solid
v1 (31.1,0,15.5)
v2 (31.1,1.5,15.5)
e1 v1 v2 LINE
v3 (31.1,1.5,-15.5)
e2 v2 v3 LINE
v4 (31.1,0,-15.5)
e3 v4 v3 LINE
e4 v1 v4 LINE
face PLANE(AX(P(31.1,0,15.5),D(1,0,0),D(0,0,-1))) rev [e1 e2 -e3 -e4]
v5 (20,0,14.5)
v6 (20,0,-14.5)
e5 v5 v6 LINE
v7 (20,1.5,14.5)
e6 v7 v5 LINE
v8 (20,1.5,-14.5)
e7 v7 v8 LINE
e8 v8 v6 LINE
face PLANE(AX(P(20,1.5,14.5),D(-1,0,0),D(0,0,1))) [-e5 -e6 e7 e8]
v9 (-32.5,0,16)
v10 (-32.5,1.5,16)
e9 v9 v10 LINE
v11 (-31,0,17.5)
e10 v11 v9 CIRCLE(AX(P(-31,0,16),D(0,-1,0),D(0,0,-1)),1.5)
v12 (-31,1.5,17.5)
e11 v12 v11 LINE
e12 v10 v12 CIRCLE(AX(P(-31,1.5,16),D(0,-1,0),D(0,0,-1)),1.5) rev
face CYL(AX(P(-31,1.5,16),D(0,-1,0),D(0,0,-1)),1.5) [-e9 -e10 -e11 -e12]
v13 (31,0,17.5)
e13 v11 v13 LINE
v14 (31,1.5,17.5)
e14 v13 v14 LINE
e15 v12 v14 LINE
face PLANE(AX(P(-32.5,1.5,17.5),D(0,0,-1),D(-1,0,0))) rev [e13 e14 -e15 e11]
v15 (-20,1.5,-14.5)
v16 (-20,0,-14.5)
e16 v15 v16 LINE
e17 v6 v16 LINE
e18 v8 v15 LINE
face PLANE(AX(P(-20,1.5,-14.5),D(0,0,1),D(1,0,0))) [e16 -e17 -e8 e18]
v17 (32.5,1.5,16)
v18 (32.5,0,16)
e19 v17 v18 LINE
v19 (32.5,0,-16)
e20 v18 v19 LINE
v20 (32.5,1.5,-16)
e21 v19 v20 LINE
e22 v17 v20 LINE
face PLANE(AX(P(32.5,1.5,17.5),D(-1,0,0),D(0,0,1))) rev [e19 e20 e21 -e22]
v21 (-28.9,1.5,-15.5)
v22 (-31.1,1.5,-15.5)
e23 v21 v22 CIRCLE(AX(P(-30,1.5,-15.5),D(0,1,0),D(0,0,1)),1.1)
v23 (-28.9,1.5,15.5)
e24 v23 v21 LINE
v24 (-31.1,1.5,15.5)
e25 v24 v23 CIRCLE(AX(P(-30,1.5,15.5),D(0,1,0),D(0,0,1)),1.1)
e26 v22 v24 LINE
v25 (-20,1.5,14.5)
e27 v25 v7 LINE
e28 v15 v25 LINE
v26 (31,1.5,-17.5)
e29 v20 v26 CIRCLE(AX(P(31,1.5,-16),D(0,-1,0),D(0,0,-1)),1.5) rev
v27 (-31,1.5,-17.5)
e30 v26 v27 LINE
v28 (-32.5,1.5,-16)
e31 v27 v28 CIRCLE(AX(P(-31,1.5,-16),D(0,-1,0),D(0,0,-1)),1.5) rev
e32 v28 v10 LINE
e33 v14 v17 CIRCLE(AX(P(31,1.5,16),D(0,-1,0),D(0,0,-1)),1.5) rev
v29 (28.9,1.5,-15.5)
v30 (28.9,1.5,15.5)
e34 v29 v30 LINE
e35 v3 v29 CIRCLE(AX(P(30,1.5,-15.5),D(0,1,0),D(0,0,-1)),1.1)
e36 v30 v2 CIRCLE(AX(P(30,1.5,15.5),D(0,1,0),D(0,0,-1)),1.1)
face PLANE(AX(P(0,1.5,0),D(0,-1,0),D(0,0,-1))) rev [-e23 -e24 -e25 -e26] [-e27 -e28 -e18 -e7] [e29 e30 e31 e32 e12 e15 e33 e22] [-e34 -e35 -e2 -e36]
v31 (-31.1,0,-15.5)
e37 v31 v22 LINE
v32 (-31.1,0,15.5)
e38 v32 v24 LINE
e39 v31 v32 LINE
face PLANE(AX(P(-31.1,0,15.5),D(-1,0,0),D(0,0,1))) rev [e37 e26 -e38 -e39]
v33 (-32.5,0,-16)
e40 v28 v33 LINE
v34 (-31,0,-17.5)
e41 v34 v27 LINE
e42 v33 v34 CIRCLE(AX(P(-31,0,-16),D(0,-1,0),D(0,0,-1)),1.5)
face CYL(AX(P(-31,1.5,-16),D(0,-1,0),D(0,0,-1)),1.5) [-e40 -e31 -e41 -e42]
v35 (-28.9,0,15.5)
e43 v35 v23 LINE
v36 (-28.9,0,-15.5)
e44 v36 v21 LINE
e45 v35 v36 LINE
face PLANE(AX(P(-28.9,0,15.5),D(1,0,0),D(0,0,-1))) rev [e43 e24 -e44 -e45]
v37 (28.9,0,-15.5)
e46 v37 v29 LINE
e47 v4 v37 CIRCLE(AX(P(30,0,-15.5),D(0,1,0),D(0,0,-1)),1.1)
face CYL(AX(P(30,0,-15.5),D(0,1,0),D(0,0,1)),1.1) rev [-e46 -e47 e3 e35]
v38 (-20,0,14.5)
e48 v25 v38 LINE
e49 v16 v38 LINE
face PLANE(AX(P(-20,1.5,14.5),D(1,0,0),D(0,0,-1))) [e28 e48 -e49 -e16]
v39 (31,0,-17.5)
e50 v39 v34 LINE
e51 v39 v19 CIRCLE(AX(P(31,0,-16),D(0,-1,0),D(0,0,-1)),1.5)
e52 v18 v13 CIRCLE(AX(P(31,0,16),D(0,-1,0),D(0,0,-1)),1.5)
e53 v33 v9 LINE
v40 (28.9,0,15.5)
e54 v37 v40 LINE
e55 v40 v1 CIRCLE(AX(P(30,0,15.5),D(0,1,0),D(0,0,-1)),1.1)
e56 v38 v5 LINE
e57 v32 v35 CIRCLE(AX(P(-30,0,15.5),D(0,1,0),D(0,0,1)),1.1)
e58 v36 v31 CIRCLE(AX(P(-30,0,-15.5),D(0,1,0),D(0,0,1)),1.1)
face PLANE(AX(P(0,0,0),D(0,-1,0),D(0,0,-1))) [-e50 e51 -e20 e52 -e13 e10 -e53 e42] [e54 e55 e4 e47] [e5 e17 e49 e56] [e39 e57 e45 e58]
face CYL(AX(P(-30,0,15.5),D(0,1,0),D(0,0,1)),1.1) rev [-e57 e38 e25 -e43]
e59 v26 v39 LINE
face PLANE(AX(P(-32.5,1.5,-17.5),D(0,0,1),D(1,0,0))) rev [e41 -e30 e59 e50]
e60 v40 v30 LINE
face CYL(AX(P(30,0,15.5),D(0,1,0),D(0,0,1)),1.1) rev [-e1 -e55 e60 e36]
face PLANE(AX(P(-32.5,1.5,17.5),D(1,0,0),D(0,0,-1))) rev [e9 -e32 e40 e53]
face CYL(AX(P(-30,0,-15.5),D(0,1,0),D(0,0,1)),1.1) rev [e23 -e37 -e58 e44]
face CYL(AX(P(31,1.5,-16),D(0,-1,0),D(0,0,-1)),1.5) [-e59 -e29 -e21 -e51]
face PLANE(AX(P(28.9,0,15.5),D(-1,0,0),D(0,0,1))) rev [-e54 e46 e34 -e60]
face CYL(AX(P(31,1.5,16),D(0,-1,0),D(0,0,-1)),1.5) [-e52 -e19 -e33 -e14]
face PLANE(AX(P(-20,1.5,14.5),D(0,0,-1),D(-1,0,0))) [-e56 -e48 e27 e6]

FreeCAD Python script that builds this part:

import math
import FreeCAD as App
import Part
import Sketcher

V = App.Vector
Q = App.Units.Quantity


def edges_at(feature, points):
    """Names of the edges that pass closest to the given points."""
    edges = feature.Shape.Edges
    near = lambda p: min(range(len(edges)), key=lambda i: edges[i].distToShape(Part.Vertex(*p))[0])
    return sorted({f"Edge{near(p) + 1}" for p in points})

doc = App.newDocument("Part")
body = doc.addObject("PartDesign::Body", "Body")

# Sketch on XZ plane
sketch1 = doc.addObject("Sketcher::SketchObject", "Sketch")
body.addObject(sketch1)
sketch1.AttachmentSupport = (doc.XZ_Plane, [""])
sketch1.MapMode = "FlatFace"
sketch1.addGeometry([
    Part.LineSegment(V(-32.5, -17.5, 0), V(-32.5, 17.5, 0)),  # 0
    Part.LineSegment(V(-32.5, 17.5, 0), V(32.5, 17.5, 0)),  # 1
    Part.LineSegment(V(32.5, 17.5, 0), V(32.5, -17.5, 0)),  # 2
    Part.LineSegment(V(32.5, -17.5, 0), V(-32.5, -17.5, 0)),  # 3
    Part.LineSegment(V(20, 14.5, 0), V(-20, 14.5, 0)),  # 4
    Part.LineSegment(V(-20, 14.5, 0), V(-20, -14.5, 0)),  # 5
    Part.LineSegment(V(-20, -14.5, 0), V(20, -14.5, 0)),  # 6
    Part.LineSegment(V(20, -14.5, 0), V(20, 14.5, 0)),  # 7
], False)
sketch1.addConstraint([
    Sketcher.Constraint("Coincident", 0, 2, 1, 1),
    Sketcher.Constraint("Coincident", 1, 2, 2, 1),
    Sketcher.Constraint("Coincident", 2, 2, 3, 1),
    Sketcher.Constraint("Coincident", 3, 2, 0, 1),
    Sketcher.Constraint("Coincident", 4, 2, 5, 1),
    Sketcher.Constraint("Coincident", 5, 2, 6, 1),
    Sketcher.Constraint("Coincident", 6, 2, 7, 1),
    Sketcher.Constraint("Coincident", 7, 2, 4, 1),
    Sketcher.Constraint("Vertical", 0),
    Sketcher.Constraint("Horizontal", 1),
    Sketcher.Constraint("Vertical", 2),
    Sketcher.Constraint("Horizontal", 3),
    Sketcher.Constraint("Horizontal", 4),
    Sketcher.Constraint("Vertical", 5),
    Sketcher.Constraint("Horizontal", 6),
    Sketcher.Constraint("Vertical", 7),
    Sketcher.Constraint("Symmetric", 0, 2, 2, 2, -1, 1),
    Sketcher.Constraint("Symmetric", 4, 2, 6, 2, -1, 1),
    Sketcher.Constraint("DistanceX", 1, 1, 1, 2, Q("65 mm")),
    Sketcher.Constraint("DistanceX", 4, 2, 4, 1, Q("40 mm")),
    Sketcher.Constraint("DistanceY", 0, 1, 0, 2, Q("35 mm")),
    Sketcher.Constraint("DistanceY", 5, 2, 5, 1, Q("29 mm")),
])
pad1 = doc.addObject("PartDesign::Pad", "Pad")
body.addObject(pad1)
pad1.Profile = sketch1
pad1.Length = 1.5
pad1.Reversed = True

# Sketch on XZ plane
sketch2 = doc.addObject("Sketcher::SketchObject", "Sketch001")
body.addObject(sketch2)
sketch2.AttachmentSupport = (doc.XZ_Plane, [""])
sketch2.MapMode = "FlatFace"
sketch2.AttachmentOffset = App.Placement(V(0, 0, -1.5), App.Rotation())
sketch2.addGeometry([
    Part.LineSegment(V(-31.1, -15.5, 0), V(-31.1, 15.5, 0)),  # 0
    Part.ArcOfCircle(Part.Circle(V(-30, 15.5, 0), V(0, 0, 1), 1.1), math.radians(0), math.radians(180)),  # 1
    Part.LineSegment(V(-28.9, 15.5, 0), V(-28.9, -15.5, 0)),  # 2
    Part.ArcOfCircle(Part.Circle(V(-30, -15.5, 0), V(0, 0, 1), 1.1), math.radians(180), math.radians(360)),  # 3
    Part.LineSegment(V(31.1, 15.5, 0), V(31.1, -15.5, 0)),  # 4
    Part.ArcOfCircle(Part.Circle(V(30, -15.5, 0), V(0, 0, 1), 1.1), math.radians(180), math.radians(360)),  # 5
    Part.LineSegment(V(28.9, -15.5, 0), V(28.9, 15.5, 0)),  # 6
    Part.ArcOfCircle(Part.Circle(V(30, 15.5, 0), V(0, 0, 1), 1.1), math.radians(0), math.radians(180)),  # 7
], False)
sketch2.addConstraint([
    Sketcher.Constraint("Tangent", 0, 2, 1, 2),
    Sketcher.Constraint("Tangent", 1, 1, 2, 1),
    Sketcher.Constraint("Tangent", 2, 2, 3, 2),
    Sketcher.Constraint("Tangent", 3, 1, 0, 1),
    Sketcher.Constraint("Tangent", 4, 2, 5, 2),
    Sketcher.Constraint("Tangent", 5, 1, 6, 1),
    Sketcher.Constraint("Tangent", 6, 2, 7, 2),
    Sketcher.Constraint("Tangent", 7, 1, 4, 1),
    Sketcher.Constraint("Vertical", 0),
    Sketcher.Constraint("Vertical", 2),
    Sketcher.Constraint("Vertical", 4),
    Sketcher.Constraint("Vertical", 6),
    Sketcher.Constraint("Equal", 3, 5),
    Sketcher.Constraint("Symmetric", 1, 3, 5, 3, -1, 1),
    Sketcher.Constraint("Horizontal", 3, 3, 5, 3),
    Sketcher.Constraint("Horizontal", 1, 3, 7, 3),
    Sketcher.Constraint("Radius", 1, Q("1.1 mm")),
    Sketcher.Constraint("DistanceY", 0, 1, 0, 2, Q("31 mm")),
    Sketcher.Constraint("DistanceX", 1, 3, -1, 1, Q("30 mm")),
])
pocket1 = doc.addObject("PartDesign::Pocket", "Pocket")
body.addObject(pocket1)
pocket1.Profile = sketch2
pocket1.Type = "ThroughAll"
pocket1.Reversed = True
doc.recompute()

fillet = doc.addObject("PartDesign::Fillet", "Fillet")
body.addObject(fillet)
fillet.Base = (pocket1, edges_at(pocket1, [
    (32.5, 0.75, 17.5),
    (-32.5, 0.75, 17.5),
    (-32.5, 0.75, -17.5),
    (32.5, 0.75, -17.5),
]))
fillet.Radius = 1.5

doc.recompute()
